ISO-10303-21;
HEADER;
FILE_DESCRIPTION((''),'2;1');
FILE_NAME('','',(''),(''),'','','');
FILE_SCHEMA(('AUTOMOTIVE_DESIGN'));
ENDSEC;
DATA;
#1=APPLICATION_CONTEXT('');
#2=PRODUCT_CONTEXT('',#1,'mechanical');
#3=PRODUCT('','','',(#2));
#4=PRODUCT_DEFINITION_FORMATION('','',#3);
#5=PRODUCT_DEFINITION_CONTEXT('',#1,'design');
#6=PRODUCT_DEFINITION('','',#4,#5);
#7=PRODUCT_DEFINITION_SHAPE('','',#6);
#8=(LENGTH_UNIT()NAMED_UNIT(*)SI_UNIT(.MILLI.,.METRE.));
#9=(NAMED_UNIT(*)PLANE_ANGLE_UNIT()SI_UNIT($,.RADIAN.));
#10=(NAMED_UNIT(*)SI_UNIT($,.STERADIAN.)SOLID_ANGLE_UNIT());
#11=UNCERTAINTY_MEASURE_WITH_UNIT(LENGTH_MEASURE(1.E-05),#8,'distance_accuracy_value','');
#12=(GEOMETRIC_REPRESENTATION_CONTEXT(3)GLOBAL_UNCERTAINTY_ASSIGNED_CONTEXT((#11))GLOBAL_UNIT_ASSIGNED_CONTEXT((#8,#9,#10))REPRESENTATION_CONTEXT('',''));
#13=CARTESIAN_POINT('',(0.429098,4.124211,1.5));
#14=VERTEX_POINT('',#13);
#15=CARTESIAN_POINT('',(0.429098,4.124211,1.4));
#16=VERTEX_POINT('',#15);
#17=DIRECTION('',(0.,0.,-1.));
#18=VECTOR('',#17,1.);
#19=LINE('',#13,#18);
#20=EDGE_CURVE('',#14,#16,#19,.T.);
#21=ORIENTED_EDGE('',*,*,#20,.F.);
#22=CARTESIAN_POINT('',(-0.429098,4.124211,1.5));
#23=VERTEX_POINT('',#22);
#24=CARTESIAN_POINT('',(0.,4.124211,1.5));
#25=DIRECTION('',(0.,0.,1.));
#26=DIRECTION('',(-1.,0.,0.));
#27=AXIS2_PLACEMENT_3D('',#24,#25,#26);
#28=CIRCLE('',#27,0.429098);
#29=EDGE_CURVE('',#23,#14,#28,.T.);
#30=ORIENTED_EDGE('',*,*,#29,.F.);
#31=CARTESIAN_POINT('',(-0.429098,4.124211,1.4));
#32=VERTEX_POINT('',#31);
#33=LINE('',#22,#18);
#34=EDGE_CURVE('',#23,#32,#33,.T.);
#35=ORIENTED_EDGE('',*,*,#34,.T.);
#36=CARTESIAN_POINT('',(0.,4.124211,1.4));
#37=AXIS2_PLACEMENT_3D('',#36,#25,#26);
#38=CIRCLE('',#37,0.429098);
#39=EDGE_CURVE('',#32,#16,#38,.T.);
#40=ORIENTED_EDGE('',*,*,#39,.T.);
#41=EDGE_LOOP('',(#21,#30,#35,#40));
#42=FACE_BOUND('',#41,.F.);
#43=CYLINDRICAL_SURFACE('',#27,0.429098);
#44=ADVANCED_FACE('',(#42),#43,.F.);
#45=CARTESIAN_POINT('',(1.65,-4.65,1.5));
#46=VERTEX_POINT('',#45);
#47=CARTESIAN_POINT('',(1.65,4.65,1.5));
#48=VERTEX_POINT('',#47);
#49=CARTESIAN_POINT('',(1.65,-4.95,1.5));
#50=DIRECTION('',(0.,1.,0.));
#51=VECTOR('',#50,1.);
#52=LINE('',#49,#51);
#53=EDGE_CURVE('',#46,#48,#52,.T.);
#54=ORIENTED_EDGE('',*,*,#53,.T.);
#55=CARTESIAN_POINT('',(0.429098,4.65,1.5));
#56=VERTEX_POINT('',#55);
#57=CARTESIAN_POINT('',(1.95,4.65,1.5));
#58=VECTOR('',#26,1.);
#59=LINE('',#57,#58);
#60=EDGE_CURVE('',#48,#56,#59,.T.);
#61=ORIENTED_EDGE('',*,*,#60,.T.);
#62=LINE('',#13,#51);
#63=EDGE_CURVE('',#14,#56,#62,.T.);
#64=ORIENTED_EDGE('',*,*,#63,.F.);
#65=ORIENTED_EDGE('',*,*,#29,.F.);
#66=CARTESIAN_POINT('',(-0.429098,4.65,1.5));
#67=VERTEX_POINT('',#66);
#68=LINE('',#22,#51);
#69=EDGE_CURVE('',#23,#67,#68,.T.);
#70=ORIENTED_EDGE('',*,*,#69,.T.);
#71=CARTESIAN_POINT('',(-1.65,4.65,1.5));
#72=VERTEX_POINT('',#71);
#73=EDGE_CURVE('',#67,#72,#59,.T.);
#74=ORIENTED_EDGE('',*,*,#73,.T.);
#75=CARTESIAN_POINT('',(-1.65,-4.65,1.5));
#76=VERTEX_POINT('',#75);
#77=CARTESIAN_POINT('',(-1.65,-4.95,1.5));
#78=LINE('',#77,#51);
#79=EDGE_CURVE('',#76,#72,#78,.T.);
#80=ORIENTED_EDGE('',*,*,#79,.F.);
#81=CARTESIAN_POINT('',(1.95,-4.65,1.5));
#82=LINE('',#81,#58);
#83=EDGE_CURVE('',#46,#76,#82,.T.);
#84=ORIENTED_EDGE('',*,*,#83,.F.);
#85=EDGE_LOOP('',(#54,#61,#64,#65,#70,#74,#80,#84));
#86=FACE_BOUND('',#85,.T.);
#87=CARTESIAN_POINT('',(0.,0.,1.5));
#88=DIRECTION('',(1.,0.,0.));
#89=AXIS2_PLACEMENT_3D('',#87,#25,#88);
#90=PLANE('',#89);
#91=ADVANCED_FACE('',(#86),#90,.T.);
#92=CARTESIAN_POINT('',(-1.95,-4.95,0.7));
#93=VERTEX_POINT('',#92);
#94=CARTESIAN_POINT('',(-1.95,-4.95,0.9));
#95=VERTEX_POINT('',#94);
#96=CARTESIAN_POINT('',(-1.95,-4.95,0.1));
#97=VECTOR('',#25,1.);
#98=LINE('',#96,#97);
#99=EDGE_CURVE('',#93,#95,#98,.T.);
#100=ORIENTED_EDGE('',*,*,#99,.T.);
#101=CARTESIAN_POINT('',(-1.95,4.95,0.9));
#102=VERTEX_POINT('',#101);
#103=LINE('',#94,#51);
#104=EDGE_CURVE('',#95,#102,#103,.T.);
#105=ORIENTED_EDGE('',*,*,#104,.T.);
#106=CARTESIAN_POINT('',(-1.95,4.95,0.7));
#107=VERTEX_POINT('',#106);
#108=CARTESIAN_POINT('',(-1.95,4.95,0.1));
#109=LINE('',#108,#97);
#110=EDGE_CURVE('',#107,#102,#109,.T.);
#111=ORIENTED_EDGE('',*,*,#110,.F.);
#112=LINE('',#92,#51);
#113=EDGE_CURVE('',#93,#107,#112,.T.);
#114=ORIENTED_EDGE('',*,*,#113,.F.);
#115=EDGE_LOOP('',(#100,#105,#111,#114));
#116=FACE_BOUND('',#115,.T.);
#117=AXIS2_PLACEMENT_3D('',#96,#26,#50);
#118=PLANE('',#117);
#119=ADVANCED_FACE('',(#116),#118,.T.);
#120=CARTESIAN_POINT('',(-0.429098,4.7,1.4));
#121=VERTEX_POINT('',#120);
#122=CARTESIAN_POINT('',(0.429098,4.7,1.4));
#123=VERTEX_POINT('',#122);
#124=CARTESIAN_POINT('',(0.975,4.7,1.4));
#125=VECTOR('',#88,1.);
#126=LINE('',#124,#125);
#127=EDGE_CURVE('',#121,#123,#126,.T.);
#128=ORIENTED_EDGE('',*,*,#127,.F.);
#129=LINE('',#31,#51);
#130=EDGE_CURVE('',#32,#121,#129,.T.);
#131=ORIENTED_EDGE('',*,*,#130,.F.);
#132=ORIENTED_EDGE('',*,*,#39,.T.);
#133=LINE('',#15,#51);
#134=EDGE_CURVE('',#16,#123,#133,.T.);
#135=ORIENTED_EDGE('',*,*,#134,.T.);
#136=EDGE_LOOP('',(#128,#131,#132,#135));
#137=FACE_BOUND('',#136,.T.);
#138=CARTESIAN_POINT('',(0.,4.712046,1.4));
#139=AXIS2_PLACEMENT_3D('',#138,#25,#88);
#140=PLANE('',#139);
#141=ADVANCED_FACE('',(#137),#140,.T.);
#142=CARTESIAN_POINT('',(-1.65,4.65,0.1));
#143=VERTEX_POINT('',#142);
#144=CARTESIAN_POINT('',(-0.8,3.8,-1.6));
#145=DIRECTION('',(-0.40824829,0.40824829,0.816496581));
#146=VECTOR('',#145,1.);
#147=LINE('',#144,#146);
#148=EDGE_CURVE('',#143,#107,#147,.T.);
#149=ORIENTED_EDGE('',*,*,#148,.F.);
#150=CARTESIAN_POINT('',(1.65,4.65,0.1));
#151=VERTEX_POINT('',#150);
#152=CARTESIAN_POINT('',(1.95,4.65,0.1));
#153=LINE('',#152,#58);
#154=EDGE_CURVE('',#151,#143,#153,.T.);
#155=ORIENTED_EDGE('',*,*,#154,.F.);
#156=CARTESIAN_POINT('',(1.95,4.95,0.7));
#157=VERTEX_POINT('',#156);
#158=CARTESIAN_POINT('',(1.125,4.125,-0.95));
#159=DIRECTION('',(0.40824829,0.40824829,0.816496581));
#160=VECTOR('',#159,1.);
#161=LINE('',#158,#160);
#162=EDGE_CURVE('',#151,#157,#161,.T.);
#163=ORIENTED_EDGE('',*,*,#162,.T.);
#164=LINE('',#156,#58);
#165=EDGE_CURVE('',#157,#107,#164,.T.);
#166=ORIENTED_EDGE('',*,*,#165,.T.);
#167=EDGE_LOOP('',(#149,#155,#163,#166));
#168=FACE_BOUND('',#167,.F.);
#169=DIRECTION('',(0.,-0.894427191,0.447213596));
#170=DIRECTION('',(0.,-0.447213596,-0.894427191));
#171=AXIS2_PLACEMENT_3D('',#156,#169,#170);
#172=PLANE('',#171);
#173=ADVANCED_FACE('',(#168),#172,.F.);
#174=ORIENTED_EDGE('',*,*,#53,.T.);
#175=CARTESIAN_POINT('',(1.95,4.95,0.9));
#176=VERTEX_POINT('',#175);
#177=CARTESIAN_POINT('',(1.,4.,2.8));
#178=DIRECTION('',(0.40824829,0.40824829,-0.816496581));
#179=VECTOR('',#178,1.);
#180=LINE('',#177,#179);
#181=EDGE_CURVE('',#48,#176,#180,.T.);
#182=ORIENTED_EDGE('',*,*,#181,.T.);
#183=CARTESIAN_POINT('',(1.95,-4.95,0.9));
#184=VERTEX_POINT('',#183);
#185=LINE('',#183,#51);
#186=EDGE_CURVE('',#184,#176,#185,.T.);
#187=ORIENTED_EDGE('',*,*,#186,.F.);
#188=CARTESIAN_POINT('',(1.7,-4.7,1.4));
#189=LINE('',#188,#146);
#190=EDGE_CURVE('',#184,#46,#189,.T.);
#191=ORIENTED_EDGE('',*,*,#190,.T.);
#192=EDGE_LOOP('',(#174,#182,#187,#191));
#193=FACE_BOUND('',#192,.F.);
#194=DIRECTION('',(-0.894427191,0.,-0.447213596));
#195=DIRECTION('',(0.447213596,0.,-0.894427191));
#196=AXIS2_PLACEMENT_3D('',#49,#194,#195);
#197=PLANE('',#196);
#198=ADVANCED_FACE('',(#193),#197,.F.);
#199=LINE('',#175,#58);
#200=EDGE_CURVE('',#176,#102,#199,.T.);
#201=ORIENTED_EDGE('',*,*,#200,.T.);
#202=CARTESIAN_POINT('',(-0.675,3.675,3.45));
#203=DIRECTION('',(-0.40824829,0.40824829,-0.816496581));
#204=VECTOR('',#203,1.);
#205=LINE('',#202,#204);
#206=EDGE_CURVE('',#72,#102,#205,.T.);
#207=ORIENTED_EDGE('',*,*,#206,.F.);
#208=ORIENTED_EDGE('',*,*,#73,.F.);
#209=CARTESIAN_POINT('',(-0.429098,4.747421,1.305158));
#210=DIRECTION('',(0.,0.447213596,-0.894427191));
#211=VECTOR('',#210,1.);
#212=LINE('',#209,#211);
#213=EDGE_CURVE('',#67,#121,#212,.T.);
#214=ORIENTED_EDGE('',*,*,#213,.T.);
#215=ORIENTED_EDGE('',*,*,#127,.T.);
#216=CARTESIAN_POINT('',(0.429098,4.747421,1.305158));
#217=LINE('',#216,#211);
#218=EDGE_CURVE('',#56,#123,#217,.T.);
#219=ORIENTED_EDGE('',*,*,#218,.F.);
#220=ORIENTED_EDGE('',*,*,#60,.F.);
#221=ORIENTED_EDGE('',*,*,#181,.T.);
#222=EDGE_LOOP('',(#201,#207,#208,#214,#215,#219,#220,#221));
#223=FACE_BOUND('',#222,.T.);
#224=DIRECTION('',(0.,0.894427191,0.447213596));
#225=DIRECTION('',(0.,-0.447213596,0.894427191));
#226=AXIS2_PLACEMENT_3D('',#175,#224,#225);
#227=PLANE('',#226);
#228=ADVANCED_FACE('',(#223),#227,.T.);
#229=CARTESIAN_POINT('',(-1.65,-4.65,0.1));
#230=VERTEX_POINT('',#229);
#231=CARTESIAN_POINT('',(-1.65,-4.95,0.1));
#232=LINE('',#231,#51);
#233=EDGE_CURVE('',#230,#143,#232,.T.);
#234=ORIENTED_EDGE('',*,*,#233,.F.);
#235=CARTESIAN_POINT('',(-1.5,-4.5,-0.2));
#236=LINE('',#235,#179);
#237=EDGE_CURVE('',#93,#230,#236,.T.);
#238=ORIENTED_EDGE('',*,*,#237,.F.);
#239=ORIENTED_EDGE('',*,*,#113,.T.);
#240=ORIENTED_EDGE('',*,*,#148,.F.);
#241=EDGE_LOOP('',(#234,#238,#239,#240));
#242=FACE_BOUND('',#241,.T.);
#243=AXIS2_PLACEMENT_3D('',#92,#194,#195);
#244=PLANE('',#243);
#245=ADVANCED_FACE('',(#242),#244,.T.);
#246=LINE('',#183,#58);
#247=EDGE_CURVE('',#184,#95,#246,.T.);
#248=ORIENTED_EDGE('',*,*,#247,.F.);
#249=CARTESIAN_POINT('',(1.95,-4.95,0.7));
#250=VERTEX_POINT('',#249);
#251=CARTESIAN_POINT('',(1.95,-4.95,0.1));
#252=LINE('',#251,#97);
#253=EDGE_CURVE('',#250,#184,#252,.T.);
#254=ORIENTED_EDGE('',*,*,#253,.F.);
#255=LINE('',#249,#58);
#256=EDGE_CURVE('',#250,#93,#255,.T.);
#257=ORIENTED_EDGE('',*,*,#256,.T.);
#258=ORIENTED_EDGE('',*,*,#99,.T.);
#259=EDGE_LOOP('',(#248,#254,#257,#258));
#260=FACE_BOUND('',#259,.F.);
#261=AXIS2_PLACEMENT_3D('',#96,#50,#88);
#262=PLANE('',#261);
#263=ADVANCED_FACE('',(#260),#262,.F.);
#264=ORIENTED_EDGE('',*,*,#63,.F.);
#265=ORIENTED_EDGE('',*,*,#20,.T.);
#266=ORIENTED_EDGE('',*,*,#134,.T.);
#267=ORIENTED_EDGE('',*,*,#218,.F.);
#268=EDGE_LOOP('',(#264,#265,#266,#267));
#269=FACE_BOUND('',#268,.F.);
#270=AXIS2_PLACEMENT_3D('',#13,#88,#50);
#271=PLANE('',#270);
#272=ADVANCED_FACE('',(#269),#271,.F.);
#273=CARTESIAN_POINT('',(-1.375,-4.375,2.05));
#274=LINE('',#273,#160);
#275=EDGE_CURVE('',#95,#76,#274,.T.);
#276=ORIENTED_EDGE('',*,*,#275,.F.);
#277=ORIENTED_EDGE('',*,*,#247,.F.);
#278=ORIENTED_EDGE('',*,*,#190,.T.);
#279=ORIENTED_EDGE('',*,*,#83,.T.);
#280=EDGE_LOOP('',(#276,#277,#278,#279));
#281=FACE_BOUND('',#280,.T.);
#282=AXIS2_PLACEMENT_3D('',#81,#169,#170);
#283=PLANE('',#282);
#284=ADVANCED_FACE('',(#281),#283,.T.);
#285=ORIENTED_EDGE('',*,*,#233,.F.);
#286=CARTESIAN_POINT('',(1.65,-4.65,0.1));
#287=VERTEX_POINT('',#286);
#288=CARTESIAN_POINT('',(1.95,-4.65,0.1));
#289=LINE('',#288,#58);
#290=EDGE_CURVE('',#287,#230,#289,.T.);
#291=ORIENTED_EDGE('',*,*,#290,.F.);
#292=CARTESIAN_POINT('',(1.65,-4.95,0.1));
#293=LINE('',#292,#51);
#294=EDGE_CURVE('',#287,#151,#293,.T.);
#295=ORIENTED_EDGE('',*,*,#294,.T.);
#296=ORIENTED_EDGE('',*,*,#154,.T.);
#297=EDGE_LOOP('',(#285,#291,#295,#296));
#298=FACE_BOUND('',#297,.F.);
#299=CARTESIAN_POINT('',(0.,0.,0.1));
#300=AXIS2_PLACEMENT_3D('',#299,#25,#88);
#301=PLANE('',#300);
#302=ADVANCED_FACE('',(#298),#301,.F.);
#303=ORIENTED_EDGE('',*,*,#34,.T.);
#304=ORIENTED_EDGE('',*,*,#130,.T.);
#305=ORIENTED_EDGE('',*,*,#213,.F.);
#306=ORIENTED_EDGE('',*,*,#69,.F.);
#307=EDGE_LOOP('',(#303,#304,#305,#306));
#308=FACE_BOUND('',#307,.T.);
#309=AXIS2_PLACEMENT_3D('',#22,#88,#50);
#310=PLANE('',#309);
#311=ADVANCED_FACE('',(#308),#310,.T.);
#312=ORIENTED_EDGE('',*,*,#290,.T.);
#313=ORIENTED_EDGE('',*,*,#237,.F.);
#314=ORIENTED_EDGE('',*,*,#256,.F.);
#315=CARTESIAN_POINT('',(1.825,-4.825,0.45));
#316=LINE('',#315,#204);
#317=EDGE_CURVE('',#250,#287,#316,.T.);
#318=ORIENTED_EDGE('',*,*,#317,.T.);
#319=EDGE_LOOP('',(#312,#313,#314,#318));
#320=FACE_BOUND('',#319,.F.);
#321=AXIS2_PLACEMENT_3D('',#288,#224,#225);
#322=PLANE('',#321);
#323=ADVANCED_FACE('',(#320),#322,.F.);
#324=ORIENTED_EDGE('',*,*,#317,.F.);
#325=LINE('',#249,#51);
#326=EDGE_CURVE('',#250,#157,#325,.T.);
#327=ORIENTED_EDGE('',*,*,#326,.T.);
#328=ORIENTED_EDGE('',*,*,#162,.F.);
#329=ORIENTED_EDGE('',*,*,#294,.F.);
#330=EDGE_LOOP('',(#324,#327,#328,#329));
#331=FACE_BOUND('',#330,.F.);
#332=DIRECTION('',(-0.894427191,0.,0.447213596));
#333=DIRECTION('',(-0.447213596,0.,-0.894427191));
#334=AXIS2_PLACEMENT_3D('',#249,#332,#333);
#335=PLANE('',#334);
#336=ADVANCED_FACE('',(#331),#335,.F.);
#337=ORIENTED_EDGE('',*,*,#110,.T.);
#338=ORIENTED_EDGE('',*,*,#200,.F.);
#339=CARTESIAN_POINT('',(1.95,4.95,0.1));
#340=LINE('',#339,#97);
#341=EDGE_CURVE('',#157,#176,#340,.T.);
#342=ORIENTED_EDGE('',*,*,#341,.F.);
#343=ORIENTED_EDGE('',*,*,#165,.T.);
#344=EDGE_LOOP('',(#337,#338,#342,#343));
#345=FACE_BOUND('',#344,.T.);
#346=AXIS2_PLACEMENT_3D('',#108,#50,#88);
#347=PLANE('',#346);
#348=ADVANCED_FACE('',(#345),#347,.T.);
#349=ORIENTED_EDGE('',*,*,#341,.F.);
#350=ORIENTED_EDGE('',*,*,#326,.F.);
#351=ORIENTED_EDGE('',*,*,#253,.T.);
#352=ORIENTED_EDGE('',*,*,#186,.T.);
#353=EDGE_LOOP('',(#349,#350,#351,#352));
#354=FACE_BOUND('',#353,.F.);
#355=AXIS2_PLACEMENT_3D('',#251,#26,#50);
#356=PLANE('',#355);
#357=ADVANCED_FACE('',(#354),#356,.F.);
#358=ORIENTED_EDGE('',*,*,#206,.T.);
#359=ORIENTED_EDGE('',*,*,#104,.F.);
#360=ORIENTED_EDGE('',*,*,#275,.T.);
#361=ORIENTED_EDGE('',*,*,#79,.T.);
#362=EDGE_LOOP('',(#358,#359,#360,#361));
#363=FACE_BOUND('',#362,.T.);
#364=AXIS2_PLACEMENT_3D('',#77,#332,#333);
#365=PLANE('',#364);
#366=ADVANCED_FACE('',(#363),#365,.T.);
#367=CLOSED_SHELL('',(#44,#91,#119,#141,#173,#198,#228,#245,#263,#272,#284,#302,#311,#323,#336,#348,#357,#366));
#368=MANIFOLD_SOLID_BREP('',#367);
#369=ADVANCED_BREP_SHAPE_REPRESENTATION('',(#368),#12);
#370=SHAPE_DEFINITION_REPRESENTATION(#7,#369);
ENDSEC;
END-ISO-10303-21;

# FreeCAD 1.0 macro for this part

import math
import FreeCAD as App
import Part
import Sketcher
from FreeCAD import Vector


def add_polygon(sketch, points):
    """Adds a closed chain of lines whose ends are joined by coincident constraints."""
    first, n = sketch.GeometryCount, len(points)
    for a, b in zip(points, points[1:] + points[:1]):
        sketch.addGeometry(Part.LineSegment(App.Vector(*a, 0), App.Vector(*b, 0)), False)
    for i in range(n):
        sketch.addConstraint(Sketcher.Constraint("Coincident", first + i, 2, first + (i + 1) % n, 1))

doc = App.newDocument("Part")
body = doc.addObject("PartDesign::Body", "Body")

# Sketch on XY plane
sketch1 = body.newObject("Sketcher::SketchObject", "Sketch")
sketch1.AttachmentSupport = (doc.getObject("XY_Plane"), [""])
sketch1.MapMode = "FlatFace"
add_polygon(sketch1, [(-1.9, 5), (-1.9, -5), (1.9, -5), (1.9, 5)])  # lines 0-3
sketch1.addConstraint([
    Sketcher.Constraint("Vertical", 0),
    Sketcher.Constraint("Horizontal", 1),
    Sketcher.Constraint("Vertical", 2),
    Sketcher.Constraint("Horizontal", 3),
    Sketcher.Constraint("Symmetric", 0, 2, 2, 2, -1, 1),
    Sketcher.Constraint("DistanceX", 1, 1, 1, 2, 3.9),
    Sketcher.Constraint("DistanceY", 0, 2, 0, 1, 9.9),
])
pad1 = body.newObject("PartDesign::Pad", "Pad")
pad1.Profile = sketch1
pad1.Length = 1.4

# Sketch on XZ plane
sketch2 = body.newObject("Sketcher::SketchObject", "Sketch001")
sketch2.AttachmentSupport = (doc.getObject("XZ_Plane"), [""])
sketch2.MapMode = "FlatFace"
sketch2.AttachmentOffset = App.Placement(Vector(0, 0, 4.95), App.Rotation())
add_polygon(sketch2, [(-1.65, 0), (-1.95, 0.6), (-1.95, 0)])  # lines 0-2
add_polygon(sketch2, [(1.65, 0), (1.95, 0), (1.95, 0.6)])  # lines 3-5
add_polygon(sketch2, [(1.95, 1.4), (1.65, 1.4), (1.95, 0.8)])  # lines 6-8
add_polygon(sketch2, [(-1.65, 1.4), (-1.95, 1.4), (-1.95, 0.8)])  # lines 9-11
sketch2.addConstraint([
    Sketcher.Constraint("Vertical", 1),
    Sketcher.Constraint("Horizontal", 2),
    Sketcher.Constraint("Horizontal", 3),
    Sketcher.Constraint("Vertical", 4),
    Sketcher.Constraint("Horizontal", 6),
    Sketcher.Constraint("Vertical", 8),
    Sketcher.Constraint("Horizontal", 9),
    Sketcher.Constraint("Vertical", 10),
    Sketcher.Constraint("Symmetric", 1, 2, 3, 2, -1, 1),
    Sketcher.Constraint("Symmetric", 2, 2, 5, 2, -2),
    Sketcher.Constraint("Symmetric", 8, 2, 9, 2, -2),
    Sketcher.Constraint("Parallel", 0, 7),
    Sketcher.Constraint("Parallel", 5, 11),
    Sketcher.Constraint("Horizontal", 0, 2, 4, 2),
    Sketcher.Constraint("Horizontal", 7, 2, 10, 2),
    Sketcher.Constraint("Vertical", 5, 2, 6, 2),
    Sketcher.Constraint("Vertical", 4, 2, 7, 2),
    Sketcher.Constraint("DistanceX", 2, 1, 2, 2, 0.3),
    Sketcher.Constraint("DistanceY", 1, 2, 1, 1, 0.6),
    Sketcher.Constraint("DistanceY", -1, 1, 6, 2, 1.4),
    Sketcher.Constraint("DistanceX", 2, 2, 3, 2, 3.6),
])
pocket1 = body.newObject("PartDesign::Pocket", "Pocket")
pocket1.Profile = sketch2
pocket1.Type = "ThroughAll"

# Sketch on YZ plane
sketch3 = body.newObject("Sketcher::SketchObject", "Sketch002")
sketch3.AttachmentSupport = (doc.getObject("YZ_Plane"), [""])
sketch3.MapMode = "FlatFace"
sketch3.AttachmentOffset = App.Placement(Vector(0, 0, 1.95), App.Rotation())
add_polygon(sketch3, [(4.65, 1.4), (4.95, 0.8), (4.95, 1.4)])  # lines 0-2
add_polygon(sketch3, [(4.95, 0.6), (4.65, 0), (4.95, 0)])  # lines 3-5
add_polygon(sketch3, [(-4.95, 1.4), (-4.95, 0.8), (-4.65, 1.4)])  # lines 6-8
add_polygon(sketch3, [(-4.95, 0.6), (-4.95, 0), (-4.65, 0)])  # lines 9-11
sketch3.addConstraint([
    Sketcher.Constraint("Vertical", 1),
    Sketcher.Constraint("Horizontal", 2),
    Sketcher.Constraint("Horizontal", 4),
    Sketcher.Constraint("Vertical", 5),
    Sketcher.Constraint("Vertical", 6),
    Sketcher.Constraint("Horizontal", 8),
    Sketcher.Constraint("Vertical", 9),
    Sketcher.Constraint("Horizontal", 10),
    Sketcher.Constraint("Symmetric", 4, 2, 9, 2, -1, 1),
    Sketcher.Constraint("Symmetric", 0, 2, 6, 2, -2),
    Sketcher.Constraint("Symmetric", 2, 2, 7, 2, -2),
    Sketcher.Constraint("Symmetric", 3, 2, 10, 2, -2),
    Sketcher.Constraint("Parallel", 3, 7),
    Sketcher.Constraint("Parallel", 0, 11),
    Sketcher.Constraint("Vertical", 2, 2, 3, 2),
    Sketcher.Constraint("Vertical", 1, 2, 4, 2),
    Sketcher.Constraint("DistanceX", 2, 2, 2, 1, 0.3),
    Sketcher.Constraint("DistanceY", 1, 1, 1, 2, 0.6),
    Sketcher.Constraint("DistanceY", -1, 1, 0, 2, 0.8),
    Sketcher.Constraint("DistanceX", 6, 2, 2, 2, 9.6),
])
pocket2 = body.newObject("PartDesign::Pocket", "Pocket001")
pocket2.Profile = sketch3
pocket2.Type = "ThroughAll"

# Sketch on XY plane
sketch4 = body.newObject("Sketcher::SketchObject", "Sketch003")
sketch4.AttachmentSupport = (doc.getObject("XY_Plane"), [""])
sketch4.MapMode = "FlatFace"
sketch4.AttachmentOffset = App.Placement(Vector(0, 0, 1.4), App.Rotation())
sketch4.addGeometry([
    Part.ArcOfCircle(Part.Circle(Vector(0, 4.12, 0), Vector(0, 0, 1), 0.43), math.radians(180), math.radians(360)),
    Part.LineSegment(Vector(0.43, 4.12, 0), Vector(0.43, 5.3, 0)),
    Part.ArcOfCircle(Part.Circle(Vector(0, 5.3, 0), Vector(0, 0, 1), 0.43), math.radians(0), math.radians(180)),
    Part.LineSegment(Vector(-0.43, 5.3, 0), Vector(-0.43, 4.12, 0)),
], False)
sketch4.addConstraint([
    Sketcher.Constraint("Tangent", 0, 2, 1, 1),
    Sketcher.Constraint("Tangent", 1, 2, 2, 1),
    Sketcher.Constraint("Tangent", 2, 2, 3, 1),
    Sketcher.Constraint("Tangent", 3, 2, 0, 1),
    Sketcher.Constraint("Vertical", 1),
    Sketcher.Constraint("Vertical", 3),
    Sketcher.Constraint("PointOnObject", 0, 3, -2),
    Sketcher.Constraint("Radius", 0, 0.429098),
    Sketcher.Constraint("DistanceY", 1, 1, 1, 2, 1.17567),
    Sketcher.Constraint("DistanceY", -1, 1, 0, 3, 4.124211),
])
pocket3 = body.newObject("PartDesign::Pocket", "Pocket002")
pocket3.Profile = sketch4
pocket3.Length = 0.1
body2 = doc.addObject("PartDesign::Body", "Body001")
doc.recompute()

body.Placement = App.Placement(Vector(0, 0, 0.1), App.Rotation(Vector(0, 0, 1), 0))
boolean = body2.newObject("PartDesign::Boolean", "Boolean")
boolean.Type = "Fuse"
boolean.addObjects([body])

doc.recompute()
